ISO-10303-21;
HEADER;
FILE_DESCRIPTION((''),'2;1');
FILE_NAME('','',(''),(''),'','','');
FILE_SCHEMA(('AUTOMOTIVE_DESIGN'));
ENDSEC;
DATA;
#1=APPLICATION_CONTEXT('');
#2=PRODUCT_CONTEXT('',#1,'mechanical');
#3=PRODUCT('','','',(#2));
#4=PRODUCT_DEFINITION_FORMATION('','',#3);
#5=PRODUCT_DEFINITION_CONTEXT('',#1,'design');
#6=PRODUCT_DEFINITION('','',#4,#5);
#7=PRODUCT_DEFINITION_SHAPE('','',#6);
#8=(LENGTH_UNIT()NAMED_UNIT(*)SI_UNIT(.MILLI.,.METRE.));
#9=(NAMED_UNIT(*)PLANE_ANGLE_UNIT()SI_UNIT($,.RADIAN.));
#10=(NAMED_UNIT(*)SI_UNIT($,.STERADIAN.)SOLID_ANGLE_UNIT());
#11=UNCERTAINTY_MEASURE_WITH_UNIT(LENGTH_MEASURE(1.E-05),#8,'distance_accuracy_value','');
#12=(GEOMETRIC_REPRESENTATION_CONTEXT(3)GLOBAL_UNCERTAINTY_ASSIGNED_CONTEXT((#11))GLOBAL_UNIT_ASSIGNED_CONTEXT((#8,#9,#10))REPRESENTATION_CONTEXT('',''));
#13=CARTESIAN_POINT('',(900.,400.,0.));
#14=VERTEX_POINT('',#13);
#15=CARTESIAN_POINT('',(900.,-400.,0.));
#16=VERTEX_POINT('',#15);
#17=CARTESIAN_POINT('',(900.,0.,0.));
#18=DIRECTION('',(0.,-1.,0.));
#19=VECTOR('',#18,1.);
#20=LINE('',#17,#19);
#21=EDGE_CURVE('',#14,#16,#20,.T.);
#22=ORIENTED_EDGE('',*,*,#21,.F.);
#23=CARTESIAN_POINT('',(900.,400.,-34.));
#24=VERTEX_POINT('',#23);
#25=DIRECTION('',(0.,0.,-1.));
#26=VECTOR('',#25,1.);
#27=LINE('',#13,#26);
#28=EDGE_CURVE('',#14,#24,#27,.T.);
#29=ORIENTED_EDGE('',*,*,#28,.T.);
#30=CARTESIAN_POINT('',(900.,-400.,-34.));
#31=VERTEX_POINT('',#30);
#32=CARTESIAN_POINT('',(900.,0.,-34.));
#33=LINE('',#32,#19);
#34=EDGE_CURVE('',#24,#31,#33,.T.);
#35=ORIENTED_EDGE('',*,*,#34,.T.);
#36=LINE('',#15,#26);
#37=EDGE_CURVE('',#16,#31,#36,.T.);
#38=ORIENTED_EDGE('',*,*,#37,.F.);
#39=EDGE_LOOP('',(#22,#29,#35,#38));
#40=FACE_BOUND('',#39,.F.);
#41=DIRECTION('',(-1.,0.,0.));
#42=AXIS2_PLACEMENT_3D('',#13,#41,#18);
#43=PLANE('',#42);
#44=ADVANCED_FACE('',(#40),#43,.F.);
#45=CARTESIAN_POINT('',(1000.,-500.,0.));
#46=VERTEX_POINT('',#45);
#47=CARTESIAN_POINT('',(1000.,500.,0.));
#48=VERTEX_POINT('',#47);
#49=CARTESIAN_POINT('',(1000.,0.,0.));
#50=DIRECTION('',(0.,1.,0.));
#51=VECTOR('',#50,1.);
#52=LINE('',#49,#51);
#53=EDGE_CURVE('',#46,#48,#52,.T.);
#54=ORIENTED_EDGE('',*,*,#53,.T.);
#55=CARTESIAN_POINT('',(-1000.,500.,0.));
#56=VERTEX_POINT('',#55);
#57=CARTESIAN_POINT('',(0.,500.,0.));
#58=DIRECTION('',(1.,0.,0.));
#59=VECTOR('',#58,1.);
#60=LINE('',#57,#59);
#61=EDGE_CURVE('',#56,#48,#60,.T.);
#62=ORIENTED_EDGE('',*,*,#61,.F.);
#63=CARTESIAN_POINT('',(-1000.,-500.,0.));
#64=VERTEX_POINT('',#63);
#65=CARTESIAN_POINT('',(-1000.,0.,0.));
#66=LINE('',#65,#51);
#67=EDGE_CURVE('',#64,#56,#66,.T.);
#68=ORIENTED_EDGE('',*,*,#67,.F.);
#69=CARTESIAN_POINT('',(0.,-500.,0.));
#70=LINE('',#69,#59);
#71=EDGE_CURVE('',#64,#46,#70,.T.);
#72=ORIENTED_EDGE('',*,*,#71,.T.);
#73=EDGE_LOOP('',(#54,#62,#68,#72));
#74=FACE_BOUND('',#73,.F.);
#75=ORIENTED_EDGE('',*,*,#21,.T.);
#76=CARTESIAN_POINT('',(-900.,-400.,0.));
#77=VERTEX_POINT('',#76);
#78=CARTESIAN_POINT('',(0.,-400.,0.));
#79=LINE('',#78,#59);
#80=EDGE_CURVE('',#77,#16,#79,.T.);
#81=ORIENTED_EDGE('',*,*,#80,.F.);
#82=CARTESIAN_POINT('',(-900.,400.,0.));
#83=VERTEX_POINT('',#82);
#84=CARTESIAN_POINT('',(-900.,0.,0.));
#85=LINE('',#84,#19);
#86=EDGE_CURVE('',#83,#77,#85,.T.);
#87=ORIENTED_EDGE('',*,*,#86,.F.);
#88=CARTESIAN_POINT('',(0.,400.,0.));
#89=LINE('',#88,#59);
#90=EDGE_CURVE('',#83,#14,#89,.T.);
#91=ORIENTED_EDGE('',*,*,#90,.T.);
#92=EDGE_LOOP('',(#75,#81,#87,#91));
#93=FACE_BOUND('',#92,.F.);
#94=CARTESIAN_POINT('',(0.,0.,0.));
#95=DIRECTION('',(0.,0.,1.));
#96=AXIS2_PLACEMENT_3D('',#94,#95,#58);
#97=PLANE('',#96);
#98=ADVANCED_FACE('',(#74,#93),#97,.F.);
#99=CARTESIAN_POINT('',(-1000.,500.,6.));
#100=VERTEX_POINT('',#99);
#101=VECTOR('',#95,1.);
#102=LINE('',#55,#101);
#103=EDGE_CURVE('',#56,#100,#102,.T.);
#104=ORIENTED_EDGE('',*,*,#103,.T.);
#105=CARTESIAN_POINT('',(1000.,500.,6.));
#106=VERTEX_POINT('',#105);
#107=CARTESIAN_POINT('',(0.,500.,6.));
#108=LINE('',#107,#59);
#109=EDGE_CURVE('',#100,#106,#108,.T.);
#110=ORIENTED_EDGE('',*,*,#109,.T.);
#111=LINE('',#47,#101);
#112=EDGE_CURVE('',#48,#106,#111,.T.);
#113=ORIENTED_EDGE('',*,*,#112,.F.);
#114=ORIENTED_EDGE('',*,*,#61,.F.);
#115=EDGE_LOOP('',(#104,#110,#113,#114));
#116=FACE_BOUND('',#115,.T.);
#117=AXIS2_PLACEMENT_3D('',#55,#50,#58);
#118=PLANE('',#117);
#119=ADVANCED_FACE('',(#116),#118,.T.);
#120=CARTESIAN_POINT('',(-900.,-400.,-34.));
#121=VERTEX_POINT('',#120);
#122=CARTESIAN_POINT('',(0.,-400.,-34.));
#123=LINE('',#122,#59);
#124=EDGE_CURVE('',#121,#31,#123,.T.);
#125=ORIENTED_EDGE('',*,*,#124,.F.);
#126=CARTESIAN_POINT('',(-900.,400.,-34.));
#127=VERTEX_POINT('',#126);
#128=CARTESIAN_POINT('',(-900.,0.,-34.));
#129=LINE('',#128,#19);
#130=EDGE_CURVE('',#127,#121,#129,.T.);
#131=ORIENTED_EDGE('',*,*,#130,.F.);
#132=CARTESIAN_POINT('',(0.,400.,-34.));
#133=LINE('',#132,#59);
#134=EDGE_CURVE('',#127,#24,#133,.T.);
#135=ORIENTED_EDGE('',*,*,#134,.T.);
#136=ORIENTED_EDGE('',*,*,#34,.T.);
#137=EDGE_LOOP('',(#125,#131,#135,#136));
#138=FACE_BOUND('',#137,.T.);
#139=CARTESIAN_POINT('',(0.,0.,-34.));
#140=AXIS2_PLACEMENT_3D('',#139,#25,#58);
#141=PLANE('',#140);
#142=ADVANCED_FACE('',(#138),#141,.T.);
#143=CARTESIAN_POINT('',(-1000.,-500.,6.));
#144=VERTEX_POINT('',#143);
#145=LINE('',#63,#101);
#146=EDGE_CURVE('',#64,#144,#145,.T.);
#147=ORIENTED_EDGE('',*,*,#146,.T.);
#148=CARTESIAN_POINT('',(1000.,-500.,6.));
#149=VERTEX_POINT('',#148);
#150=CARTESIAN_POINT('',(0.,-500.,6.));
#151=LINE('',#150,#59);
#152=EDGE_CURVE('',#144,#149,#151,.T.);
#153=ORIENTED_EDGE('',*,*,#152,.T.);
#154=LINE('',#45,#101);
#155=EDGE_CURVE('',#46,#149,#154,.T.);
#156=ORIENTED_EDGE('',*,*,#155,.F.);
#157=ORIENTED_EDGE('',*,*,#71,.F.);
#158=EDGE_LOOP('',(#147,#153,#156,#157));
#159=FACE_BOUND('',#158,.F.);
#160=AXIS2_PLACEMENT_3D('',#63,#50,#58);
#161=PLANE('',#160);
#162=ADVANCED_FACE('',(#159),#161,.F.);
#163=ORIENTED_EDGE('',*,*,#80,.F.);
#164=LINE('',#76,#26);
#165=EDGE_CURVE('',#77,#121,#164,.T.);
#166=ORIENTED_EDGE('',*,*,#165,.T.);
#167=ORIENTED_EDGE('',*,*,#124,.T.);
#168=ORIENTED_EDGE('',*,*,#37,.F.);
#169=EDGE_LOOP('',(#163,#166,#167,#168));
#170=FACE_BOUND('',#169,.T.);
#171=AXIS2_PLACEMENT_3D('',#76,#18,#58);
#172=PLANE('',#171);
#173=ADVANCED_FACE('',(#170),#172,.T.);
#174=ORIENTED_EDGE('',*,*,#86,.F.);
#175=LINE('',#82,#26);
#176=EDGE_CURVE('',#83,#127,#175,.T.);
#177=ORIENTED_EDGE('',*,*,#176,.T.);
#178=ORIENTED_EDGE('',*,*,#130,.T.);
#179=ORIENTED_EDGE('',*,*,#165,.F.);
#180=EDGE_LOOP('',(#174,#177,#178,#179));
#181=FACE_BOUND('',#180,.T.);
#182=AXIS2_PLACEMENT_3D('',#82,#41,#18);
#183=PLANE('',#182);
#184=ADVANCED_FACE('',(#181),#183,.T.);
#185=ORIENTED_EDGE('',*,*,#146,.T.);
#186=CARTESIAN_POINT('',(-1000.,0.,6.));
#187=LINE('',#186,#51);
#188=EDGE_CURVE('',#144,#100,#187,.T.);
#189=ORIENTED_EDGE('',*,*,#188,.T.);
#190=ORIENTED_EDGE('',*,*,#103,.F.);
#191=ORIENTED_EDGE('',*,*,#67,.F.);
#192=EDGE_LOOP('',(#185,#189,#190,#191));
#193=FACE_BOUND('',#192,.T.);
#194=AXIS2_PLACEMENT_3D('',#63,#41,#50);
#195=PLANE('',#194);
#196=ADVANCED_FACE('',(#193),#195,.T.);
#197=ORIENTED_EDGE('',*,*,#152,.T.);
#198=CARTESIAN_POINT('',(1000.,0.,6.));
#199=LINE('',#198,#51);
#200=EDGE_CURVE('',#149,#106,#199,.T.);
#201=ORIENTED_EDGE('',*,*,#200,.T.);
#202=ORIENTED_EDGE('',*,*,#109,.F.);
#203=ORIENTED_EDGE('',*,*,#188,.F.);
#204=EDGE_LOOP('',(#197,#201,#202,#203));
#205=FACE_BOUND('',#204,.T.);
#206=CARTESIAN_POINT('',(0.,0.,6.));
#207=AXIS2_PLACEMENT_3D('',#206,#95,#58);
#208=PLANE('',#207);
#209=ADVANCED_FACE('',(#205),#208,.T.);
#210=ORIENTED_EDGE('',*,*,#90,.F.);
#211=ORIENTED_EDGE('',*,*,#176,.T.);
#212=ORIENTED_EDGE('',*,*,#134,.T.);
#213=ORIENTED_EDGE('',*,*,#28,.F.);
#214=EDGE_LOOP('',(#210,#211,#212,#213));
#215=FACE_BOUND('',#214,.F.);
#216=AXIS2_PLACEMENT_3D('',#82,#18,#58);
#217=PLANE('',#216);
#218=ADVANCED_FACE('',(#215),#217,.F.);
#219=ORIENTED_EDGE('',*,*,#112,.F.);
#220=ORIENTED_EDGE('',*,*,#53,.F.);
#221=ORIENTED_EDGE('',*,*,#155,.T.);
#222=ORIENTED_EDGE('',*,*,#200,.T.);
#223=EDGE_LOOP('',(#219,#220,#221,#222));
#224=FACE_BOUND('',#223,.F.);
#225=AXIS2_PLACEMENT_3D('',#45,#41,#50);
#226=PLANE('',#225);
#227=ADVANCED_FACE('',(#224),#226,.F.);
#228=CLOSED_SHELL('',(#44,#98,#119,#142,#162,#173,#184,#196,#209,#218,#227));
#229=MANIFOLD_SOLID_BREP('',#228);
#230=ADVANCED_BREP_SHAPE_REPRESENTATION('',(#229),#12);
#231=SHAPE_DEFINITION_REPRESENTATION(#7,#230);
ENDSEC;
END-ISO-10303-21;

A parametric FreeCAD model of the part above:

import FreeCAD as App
import Part
import Sketcher

V = App.Vector


def add_polygon(sketch, points):
    """Adds a closed chain of lines whose ends are joined by coincident constraints."""
    first, n = sketch.GeometryCount, len(points)
    for a, b in zip(points, points[1:] + points[:1]):
        sketch.addGeometry(Part.LineSegment(App.Vector(*a, 0), App.Vector(*b, 0)), False)
    for i in range(n):
        sketch.addConstraint(Sketcher.Constraint("Coincident", first + i, 2, first + (i + 1) % n, 1))

doc = App.newDocument("Part")
body = doc.addObject("PartDesign::Body", "Body")

sketch1 = doc.addObject("Sketcher::SketchObject", "Sketch")
body.addObject(sketch1)
sketch1.AttachmentSupport = (doc.XY_Plane, [""])
sketch1.MapMode = "FlatFace"
add_polygon(sketch1, [(-1000, 500), (-1000, -500), (1000, -500), (1000, 500)])
sketch1.addConstraint(Sketcher.Constraint("Vertical", 0))
sketch1.addConstraint(Sketcher.Constraint("Horizontal", 1))
sketch1.addConstraint(Sketcher.Constraint("Vertical", 2))
sketch1.addConstraint(Sketcher.Constraint("Horizontal", 3))
sketch1.addConstraint(Sketcher.Constraint("Symmetric", 0, 2, 2, 2, -1, 1))
sketch1.addConstraint(Sketcher.Constraint("DistanceX", 1, 1, 1, 2, 2000.0))
sketch1.addConstraint(Sketcher.Constraint("DistanceY", 0, 2, 0, 1, 1000.0))
pad1 = doc.addObject("PartDesign::Pad", "Pad")
body.addObject(pad1)
pad1.Profile = sketch1
pad1.Length = 6

sketch2 = doc.addObject("Sketcher::SketchObject", "Sketch001")
body.addObject(sketch2)
sketch2.AttachmentSupport = (doc.XY_Plane, [""])
sketch2.MapMode = "FlatFace"
add_polygon(sketch2, [(-900, -400), (-900, 400), (900, 400), (900, -400)])
sketch2.addConstraint(Sketcher.Constraint("Vertical", 0))
sketch2.addConstraint(Sketcher.Constraint("Horizontal", 1))
sketch2.addConstraint(Sketcher.Constraint("Vertical", 2))
sketch2.addConstraint(Sketcher.Constraint("Horizontal", 3))
sketch2.addConstraint(Sketcher.Constraint("Symmetric", 0, 2, 2, 2, -1, 1))
sketch2.addConstraint(Sketcher.Constraint("DistanceX", 1, 1, 1, 2, 1800.0))
sketch2.addConstraint(Sketcher.Constraint("DistanceY", 0, 1, 0, 2, 800.0))
pad2 = doc.addObject("PartDesign::Pad", "Pad001")
body.addObject(pad2)
pad2.Profile = sketch2
pad2.Length = 34
pad2.Reversed = True

doc.recompute()
